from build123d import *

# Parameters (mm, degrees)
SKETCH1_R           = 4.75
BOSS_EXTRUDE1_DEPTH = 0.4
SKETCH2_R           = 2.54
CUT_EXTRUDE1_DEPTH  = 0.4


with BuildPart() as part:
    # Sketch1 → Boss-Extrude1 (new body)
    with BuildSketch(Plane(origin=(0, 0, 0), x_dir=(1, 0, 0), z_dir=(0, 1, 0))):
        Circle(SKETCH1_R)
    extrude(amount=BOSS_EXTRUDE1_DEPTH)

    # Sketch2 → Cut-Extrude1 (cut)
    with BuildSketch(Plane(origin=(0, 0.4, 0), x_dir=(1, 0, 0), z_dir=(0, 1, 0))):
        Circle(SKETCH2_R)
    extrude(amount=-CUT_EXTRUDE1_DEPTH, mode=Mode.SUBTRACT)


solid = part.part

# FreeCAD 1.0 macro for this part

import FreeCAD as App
import Part
import Sketcher

V = App.Vector
Q = App.Units.Quantity

doc = App.newDocument("Part")
body = doc.addObject("PartDesign::Body", "Body")

# Sketch on XZ plane
sketch1 = doc.addObject("Sketcher::SketchObject", "Sketch")
body.addObject(sketch1)
sketch1.AttachmentSupport = (doc.XZ_Plane, [""])
sketch1.MapMode = "FlatFace"
sketch1.addGeometry(Part.Circle(V(0, 0, 0), V(0, 0, 1), 4.75), False)
sketch1.addConstraint([
    Sketcher.Constraint("Coincident", 0, 3, -1, 1),
    Sketcher.Constraint("Diameter", 0, Q("9.5 mm")),
])
pad1 = doc.addObject("PartDesign::Pad", "Pad")
body.addObject(pad1)
pad1.Profile = sketch1
pad1.Length = 0.4
pad1.Reversed = True

# Sketch on XZ plane
sketch2 = doc.addObject("Sketcher::SketchObject", "Sketch001")
body.addObject(sketch2)
sketch2.AttachmentSupport = (doc.XZ_Plane, [""])
sketch2.MapMode = "FlatFace"
sketch2.AttachmentOffset = App.Placement(V(0, 0, -0.4), App.Rotation())
sketch2.addGeometry(Part.Circle(V(0, 0, 0), V(0, 0, 1), 2.54), False)
sketch2.addConstraint([
    Sketcher.Constraint("Coincident", 0, 3, -1, 1),
    Sketcher.Constraint("Diameter", 0, Q("5.08 mm")),
])
pocket1 = doc.addObject("PartDesign::Pocket", "Pocket")
body.addObject(pocket1)
pocket1.Profile = sketch2
pocket1.Length = 0.4
pocket1.Reversed = True

doc.recompute()
